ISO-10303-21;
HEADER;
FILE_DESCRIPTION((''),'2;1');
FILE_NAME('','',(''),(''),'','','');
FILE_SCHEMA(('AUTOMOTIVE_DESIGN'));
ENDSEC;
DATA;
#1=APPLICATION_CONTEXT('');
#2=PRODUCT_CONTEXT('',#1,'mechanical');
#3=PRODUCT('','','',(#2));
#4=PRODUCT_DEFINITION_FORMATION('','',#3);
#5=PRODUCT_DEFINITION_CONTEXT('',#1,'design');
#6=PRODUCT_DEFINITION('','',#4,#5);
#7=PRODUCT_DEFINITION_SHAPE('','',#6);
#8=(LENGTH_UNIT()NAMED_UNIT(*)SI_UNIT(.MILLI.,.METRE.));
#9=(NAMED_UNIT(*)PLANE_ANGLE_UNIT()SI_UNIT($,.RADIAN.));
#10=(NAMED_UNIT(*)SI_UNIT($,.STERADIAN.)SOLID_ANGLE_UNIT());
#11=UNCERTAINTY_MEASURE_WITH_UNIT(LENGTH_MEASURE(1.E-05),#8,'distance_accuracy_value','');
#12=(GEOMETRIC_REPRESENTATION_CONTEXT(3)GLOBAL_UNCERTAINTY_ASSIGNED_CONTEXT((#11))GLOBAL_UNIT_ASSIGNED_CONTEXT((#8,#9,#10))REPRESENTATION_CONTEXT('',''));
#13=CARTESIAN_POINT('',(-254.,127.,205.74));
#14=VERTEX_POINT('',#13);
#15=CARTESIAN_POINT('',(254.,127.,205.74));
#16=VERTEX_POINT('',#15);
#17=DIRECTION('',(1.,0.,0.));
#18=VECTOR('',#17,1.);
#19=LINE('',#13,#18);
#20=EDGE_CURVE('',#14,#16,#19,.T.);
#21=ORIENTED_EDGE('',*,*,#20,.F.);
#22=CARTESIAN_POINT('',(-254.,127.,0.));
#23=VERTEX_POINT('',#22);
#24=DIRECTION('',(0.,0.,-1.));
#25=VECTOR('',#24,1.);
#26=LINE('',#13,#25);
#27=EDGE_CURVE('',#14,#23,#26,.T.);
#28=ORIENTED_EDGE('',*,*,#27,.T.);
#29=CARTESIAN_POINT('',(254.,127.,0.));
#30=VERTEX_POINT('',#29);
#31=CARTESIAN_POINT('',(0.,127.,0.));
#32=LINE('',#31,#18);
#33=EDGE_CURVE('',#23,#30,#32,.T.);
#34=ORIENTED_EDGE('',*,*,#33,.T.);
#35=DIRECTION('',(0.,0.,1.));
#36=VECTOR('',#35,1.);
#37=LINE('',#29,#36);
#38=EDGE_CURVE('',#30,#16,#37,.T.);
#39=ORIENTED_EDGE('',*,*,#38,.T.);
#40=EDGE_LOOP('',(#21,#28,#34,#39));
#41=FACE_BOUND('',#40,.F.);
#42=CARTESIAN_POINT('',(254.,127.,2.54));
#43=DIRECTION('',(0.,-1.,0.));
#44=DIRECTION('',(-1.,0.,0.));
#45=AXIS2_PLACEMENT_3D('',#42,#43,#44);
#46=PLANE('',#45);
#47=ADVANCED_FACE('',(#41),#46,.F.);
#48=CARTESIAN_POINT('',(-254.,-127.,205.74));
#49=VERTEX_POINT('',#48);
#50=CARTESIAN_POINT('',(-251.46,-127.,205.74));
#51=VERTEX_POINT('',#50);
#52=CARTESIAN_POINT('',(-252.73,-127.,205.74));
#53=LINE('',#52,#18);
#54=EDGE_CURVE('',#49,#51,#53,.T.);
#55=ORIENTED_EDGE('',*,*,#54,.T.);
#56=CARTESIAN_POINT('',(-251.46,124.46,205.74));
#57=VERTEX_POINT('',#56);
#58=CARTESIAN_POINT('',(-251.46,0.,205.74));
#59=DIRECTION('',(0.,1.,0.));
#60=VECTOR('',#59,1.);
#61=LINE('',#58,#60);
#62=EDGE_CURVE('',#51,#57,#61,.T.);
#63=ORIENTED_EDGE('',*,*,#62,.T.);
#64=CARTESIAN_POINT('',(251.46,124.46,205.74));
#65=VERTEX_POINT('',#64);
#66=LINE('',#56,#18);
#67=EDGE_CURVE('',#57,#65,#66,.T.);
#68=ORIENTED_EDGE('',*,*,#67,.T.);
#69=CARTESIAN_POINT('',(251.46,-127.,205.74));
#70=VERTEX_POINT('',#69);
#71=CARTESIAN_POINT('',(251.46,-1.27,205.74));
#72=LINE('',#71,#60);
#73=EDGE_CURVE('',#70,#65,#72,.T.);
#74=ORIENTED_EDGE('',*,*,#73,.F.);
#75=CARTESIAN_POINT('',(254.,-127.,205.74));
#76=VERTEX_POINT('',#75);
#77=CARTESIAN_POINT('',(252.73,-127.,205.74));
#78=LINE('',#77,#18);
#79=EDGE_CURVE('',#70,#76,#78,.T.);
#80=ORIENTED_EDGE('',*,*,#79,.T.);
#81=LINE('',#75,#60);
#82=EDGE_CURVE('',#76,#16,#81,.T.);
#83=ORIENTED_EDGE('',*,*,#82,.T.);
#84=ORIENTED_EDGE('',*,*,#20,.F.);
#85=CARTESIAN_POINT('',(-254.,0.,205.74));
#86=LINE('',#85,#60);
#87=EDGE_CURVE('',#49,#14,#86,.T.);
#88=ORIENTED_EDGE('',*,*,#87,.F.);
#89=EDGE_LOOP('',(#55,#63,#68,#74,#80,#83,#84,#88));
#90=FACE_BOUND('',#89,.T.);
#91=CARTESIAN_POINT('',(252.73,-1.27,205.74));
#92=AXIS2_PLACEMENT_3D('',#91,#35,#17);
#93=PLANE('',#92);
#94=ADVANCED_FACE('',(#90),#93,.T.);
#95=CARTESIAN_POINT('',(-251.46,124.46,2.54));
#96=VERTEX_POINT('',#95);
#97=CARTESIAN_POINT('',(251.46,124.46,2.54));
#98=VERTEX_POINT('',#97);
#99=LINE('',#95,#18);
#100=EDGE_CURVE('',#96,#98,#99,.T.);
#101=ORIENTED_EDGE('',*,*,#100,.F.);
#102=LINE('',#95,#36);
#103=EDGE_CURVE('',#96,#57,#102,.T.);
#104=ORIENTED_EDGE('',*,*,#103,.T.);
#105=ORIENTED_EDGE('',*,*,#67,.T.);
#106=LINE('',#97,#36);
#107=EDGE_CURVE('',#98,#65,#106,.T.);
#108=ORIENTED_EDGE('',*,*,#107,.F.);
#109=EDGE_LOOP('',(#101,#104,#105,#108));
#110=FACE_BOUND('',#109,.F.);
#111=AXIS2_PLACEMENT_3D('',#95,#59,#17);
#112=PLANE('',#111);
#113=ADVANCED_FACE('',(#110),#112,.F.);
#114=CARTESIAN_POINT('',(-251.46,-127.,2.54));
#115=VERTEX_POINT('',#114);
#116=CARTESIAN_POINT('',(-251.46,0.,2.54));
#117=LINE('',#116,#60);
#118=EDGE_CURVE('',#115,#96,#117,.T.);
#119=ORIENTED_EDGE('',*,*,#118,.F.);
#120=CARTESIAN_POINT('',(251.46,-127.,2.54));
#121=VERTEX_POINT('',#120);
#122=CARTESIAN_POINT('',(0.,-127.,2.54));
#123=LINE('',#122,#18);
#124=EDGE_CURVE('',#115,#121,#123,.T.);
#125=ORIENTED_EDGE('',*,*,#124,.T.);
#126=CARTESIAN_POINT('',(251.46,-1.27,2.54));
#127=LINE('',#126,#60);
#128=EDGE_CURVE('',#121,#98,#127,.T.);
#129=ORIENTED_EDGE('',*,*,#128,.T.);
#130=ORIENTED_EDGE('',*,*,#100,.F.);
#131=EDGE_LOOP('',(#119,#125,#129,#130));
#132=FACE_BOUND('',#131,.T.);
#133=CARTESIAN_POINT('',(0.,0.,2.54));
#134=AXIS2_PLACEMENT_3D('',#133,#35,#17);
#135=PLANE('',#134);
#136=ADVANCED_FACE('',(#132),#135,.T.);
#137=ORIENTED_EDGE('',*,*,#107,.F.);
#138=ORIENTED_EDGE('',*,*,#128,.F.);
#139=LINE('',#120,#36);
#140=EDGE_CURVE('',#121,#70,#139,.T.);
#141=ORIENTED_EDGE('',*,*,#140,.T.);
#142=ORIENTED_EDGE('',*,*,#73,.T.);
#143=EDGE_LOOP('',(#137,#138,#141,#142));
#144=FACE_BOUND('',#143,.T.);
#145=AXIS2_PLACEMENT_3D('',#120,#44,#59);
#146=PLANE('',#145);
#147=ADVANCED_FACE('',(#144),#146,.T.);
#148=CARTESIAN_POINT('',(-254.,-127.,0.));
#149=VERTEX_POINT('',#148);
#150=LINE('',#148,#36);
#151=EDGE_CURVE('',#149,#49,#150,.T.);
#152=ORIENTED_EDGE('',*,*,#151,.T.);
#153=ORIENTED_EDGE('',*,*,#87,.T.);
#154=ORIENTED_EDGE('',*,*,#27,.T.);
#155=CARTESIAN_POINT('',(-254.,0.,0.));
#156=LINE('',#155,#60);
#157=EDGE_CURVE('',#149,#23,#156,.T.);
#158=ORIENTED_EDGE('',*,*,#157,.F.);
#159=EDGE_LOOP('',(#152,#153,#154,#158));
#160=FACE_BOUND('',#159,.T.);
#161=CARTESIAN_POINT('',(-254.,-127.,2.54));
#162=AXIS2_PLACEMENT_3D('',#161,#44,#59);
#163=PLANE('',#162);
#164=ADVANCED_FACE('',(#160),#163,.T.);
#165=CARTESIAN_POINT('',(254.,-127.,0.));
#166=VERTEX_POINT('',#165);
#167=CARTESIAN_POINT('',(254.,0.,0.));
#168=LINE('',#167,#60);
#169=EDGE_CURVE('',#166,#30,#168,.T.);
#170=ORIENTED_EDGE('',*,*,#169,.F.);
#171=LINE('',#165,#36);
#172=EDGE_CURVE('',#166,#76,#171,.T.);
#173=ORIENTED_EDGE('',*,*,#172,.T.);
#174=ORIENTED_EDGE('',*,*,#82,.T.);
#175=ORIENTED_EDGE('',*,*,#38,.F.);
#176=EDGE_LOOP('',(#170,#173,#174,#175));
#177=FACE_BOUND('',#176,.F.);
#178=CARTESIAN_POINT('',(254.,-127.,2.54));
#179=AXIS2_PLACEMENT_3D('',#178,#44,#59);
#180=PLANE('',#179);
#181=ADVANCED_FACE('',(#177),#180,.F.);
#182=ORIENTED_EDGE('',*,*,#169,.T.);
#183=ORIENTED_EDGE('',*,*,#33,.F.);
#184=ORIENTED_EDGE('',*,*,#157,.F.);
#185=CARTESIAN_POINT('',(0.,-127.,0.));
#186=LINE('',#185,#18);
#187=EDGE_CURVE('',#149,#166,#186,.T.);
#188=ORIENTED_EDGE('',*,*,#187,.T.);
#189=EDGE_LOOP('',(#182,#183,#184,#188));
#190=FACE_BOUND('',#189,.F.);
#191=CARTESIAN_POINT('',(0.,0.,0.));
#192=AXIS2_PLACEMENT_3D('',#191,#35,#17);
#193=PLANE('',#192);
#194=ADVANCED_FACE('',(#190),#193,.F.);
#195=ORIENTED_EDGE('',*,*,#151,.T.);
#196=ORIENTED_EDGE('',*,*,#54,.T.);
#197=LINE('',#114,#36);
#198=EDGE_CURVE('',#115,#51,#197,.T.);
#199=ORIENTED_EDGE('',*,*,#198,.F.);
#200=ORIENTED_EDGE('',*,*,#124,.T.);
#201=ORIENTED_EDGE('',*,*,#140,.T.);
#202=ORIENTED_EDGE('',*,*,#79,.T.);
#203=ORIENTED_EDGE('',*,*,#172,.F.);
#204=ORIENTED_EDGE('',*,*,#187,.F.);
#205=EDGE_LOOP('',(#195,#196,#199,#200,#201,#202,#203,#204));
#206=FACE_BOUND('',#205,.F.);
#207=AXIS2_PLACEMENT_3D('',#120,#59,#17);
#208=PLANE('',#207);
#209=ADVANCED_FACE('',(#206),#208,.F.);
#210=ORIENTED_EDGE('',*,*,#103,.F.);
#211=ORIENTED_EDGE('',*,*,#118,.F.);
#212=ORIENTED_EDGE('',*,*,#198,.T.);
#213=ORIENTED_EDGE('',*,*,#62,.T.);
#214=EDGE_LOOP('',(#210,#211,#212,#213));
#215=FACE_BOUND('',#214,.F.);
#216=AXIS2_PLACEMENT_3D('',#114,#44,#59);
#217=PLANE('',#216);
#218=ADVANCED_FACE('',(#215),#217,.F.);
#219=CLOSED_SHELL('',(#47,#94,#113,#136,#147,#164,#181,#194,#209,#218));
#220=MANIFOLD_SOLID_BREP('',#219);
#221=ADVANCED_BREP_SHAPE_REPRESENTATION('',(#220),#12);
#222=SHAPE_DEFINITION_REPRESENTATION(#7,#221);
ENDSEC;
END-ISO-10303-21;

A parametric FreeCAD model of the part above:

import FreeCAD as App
import Part
import Sketcher
Q = App.Units.Quantity


def add_polygon(sketch, points):
    """Adds a closed chain of lines whose ends are joined by coincident constraints."""
    first, n = sketch.GeometryCount, len(points)
    for a, b in zip(points, points[1:] + points[:1]):
        sketch.addGeometry(Part.LineSegment(App.Vector(*a, 0), App.Vector(*b, 0)), False)
    for i in range(n):
        sketch.addConstraint(Sketcher.Constraint("Coincident", first + i, 2, first + (i + 1) % n, 1))

doc = App.newDocument("Part")
body = doc.addObject("PartDesign::Body", "Body")

# Sketch on XY plane
sketch1 = body.newObject("Sketcher::SketchObject", "Sketch")
sketch1.AttachmentSupport = (doc.getObject("XY_Plane"), [""])
sketch1.MapMode = "FlatFace"
add_polygon(sketch1, [(-254, 127), (-254, -127), (254, -127), (254, 127)])  # lines 0-3
sketch1.addConstraint(Sketcher.Constraint("Vertical", 0))
sketch1.addConstraint(Sketcher.Constraint("Horizontal", 1))
sketch1.addConstraint(Sketcher.Constraint("Vertical", 2))
sketch1.addConstraint(Sketcher.Constraint("Horizontal", 3))
sketch1.addConstraint(Sketcher.Constraint("Symmetric", 0, 2, 2, 2, -1, 1))
sketch1.addConstraint(Sketcher.Constraint("DistanceX", 1, 1, 1, 2, Q("20 in")))
sketch1.addConstraint(Sketcher.Constraint("DistanceY", 0, 2, 0, 1, Q("10 in")))
pad1 = body.newObject("PartDesign::Pad", "Pad")
pad1.Profile = sketch1
pad1.Length = Q("0.1 in")

# Sketch on XY plane
sketch2 = body.newObject("Sketcher::SketchObject", "Sketch001")
sketch2.AttachmentSupport = (doc.getObject("XY_Plane"), [""])
sketch2.MapMode = "FlatFace"
sketch2.AttachmentOffset = App.Placement(App.Vector(0, 0, 0.1 * 25.4), App.Rotation())
add_polygon(sketch2, [(-254, 127), (-254, -127), (-251.46, -127), (-251.46, 127)])  # lines 0-3
sketch2.addConstraint(Sketcher.Constraint("Vertical", 0))
sketch2.addConstraint(Sketcher.Constraint("Horizontal", 1))
sketch2.addConstraint(Sketcher.Constraint("Vertical", 2))
sketch2.addConstraint(Sketcher.Constraint("Horizontal", 3))
sketch2.addConstraint(Sketcher.Constraint("DistanceY", 0, 2, 0, 1, Q("10 in")))
sketch2.addConstraint(Sketcher.Constraint("DistanceX", 1, 1, 1, 2, Q("0.1 in")))
sketch2.addConstraint(Sketcher.Constraint("DistanceX", 0, 2, -1, 1, Q("10 in")))
sketch2.addConstraint(Sketcher.Constraint("DistanceY", 0, 2, -1, 1, Q("5 in")))
pad2 = body.newObject("PartDesign::Pad", "Pad001")
pad2.Profile = sketch2
pad2.Length = Q("8 in")

# Sketch on XY plane
sketch3 = body.newObject("Sketcher::SketchObject", "Sketch002")
sketch3.AttachmentSupport = (doc.getObject("XY_Plane"), [""])
sketch3.MapMode = "FlatFace"
sketch3.AttachmentOffset = App.Placement(App.Vector(0, 0, 0.1 * 25.4), App.Rotation())
add_polygon(sketch3, [(254, 124.46), (254, 127), (-251.46, 127), (-251.46, 124.46)])  # lines 0-3
sketch3.addConstraint(Sketcher.Constraint("Vertical", 0))
sketch3.addConstraint(Sketcher.Constraint("Horizontal", 1))
sketch3.addConstraint(Sketcher.Constraint("Vertical", 2))
sketch3.addConstraint(Sketcher.Constraint("Horizontal", 3))
sketch3.addConstraint(Sketcher.Constraint("DistanceX", 1, 2, 1, 1, Q("19.9 in")))
sketch3.addConstraint(Sketcher.Constraint("DistanceY", 0, 1, 0, 2, Q("0.1 in")))
sketch3.addConstraint(Sketcher.Constraint("DistanceX", -1, 1, 0, 2, Q("10 in")))
sketch3.addConstraint(Sketcher.Constraint("DistanceY", -1, 1, 0, 2, Q("5 in")))
pad3 = body.newObject("PartDesign::Pad", "Pad002")
pad3.Profile = sketch3
pad3.Length = Q("8 in")

# Sketch on XY plane
sketch4 = body.newObject("Sketcher::SketchObject", "Sketch003")
sketch4.AttachmentSupport = (doc.getObject("XY_Plane"), [""])
sketch4.MapMode = "FlatFace"
sketch4.AttachmentOffset = App.Placement(App.Vector(0, 0, 0.1 * 25.4), App.Rotation())
add_polygon(sketch4, [(251.46, 124.46), (251.46, -127), (254, -127), (254, 124.46)])  # lines 0-3
sketch4.addConstraint(Sketcher.Constraint("Vertical", 0))
sketch4.addConstraint(Sketcher.Constraint("Horizontal", 1))
sketch4.addConstraint(Sketcher.Constraint("Vertical", 2))
sketch4.addConstraint(Sketcher.Constraint("Horizontal", 3))
sketch4.addConstraint(Sketcher.Constraint("DistanceX", 1, 1, 1, 2, Q("0.1 in")))
sketch4.addConstraint(Sketcher.Constraint("DistanceY", 0, 2, 0, 1, Q("9.9 in")))
sketch4.addConstraint(Sketcher.Constraint("DistanceY", 0, 2, -1, 1, Q("5 in")))
sketch4.addConstraint(Sketcher.Constraint("DistanceX", -1, 1, 1, 2, Q("10 in")))
pad4 = body.newObject("PartDesign::Pad", "Pad003")
pad4.Profile = sketch4
pad4.Length = Q("8 in")

doc.recompute()
